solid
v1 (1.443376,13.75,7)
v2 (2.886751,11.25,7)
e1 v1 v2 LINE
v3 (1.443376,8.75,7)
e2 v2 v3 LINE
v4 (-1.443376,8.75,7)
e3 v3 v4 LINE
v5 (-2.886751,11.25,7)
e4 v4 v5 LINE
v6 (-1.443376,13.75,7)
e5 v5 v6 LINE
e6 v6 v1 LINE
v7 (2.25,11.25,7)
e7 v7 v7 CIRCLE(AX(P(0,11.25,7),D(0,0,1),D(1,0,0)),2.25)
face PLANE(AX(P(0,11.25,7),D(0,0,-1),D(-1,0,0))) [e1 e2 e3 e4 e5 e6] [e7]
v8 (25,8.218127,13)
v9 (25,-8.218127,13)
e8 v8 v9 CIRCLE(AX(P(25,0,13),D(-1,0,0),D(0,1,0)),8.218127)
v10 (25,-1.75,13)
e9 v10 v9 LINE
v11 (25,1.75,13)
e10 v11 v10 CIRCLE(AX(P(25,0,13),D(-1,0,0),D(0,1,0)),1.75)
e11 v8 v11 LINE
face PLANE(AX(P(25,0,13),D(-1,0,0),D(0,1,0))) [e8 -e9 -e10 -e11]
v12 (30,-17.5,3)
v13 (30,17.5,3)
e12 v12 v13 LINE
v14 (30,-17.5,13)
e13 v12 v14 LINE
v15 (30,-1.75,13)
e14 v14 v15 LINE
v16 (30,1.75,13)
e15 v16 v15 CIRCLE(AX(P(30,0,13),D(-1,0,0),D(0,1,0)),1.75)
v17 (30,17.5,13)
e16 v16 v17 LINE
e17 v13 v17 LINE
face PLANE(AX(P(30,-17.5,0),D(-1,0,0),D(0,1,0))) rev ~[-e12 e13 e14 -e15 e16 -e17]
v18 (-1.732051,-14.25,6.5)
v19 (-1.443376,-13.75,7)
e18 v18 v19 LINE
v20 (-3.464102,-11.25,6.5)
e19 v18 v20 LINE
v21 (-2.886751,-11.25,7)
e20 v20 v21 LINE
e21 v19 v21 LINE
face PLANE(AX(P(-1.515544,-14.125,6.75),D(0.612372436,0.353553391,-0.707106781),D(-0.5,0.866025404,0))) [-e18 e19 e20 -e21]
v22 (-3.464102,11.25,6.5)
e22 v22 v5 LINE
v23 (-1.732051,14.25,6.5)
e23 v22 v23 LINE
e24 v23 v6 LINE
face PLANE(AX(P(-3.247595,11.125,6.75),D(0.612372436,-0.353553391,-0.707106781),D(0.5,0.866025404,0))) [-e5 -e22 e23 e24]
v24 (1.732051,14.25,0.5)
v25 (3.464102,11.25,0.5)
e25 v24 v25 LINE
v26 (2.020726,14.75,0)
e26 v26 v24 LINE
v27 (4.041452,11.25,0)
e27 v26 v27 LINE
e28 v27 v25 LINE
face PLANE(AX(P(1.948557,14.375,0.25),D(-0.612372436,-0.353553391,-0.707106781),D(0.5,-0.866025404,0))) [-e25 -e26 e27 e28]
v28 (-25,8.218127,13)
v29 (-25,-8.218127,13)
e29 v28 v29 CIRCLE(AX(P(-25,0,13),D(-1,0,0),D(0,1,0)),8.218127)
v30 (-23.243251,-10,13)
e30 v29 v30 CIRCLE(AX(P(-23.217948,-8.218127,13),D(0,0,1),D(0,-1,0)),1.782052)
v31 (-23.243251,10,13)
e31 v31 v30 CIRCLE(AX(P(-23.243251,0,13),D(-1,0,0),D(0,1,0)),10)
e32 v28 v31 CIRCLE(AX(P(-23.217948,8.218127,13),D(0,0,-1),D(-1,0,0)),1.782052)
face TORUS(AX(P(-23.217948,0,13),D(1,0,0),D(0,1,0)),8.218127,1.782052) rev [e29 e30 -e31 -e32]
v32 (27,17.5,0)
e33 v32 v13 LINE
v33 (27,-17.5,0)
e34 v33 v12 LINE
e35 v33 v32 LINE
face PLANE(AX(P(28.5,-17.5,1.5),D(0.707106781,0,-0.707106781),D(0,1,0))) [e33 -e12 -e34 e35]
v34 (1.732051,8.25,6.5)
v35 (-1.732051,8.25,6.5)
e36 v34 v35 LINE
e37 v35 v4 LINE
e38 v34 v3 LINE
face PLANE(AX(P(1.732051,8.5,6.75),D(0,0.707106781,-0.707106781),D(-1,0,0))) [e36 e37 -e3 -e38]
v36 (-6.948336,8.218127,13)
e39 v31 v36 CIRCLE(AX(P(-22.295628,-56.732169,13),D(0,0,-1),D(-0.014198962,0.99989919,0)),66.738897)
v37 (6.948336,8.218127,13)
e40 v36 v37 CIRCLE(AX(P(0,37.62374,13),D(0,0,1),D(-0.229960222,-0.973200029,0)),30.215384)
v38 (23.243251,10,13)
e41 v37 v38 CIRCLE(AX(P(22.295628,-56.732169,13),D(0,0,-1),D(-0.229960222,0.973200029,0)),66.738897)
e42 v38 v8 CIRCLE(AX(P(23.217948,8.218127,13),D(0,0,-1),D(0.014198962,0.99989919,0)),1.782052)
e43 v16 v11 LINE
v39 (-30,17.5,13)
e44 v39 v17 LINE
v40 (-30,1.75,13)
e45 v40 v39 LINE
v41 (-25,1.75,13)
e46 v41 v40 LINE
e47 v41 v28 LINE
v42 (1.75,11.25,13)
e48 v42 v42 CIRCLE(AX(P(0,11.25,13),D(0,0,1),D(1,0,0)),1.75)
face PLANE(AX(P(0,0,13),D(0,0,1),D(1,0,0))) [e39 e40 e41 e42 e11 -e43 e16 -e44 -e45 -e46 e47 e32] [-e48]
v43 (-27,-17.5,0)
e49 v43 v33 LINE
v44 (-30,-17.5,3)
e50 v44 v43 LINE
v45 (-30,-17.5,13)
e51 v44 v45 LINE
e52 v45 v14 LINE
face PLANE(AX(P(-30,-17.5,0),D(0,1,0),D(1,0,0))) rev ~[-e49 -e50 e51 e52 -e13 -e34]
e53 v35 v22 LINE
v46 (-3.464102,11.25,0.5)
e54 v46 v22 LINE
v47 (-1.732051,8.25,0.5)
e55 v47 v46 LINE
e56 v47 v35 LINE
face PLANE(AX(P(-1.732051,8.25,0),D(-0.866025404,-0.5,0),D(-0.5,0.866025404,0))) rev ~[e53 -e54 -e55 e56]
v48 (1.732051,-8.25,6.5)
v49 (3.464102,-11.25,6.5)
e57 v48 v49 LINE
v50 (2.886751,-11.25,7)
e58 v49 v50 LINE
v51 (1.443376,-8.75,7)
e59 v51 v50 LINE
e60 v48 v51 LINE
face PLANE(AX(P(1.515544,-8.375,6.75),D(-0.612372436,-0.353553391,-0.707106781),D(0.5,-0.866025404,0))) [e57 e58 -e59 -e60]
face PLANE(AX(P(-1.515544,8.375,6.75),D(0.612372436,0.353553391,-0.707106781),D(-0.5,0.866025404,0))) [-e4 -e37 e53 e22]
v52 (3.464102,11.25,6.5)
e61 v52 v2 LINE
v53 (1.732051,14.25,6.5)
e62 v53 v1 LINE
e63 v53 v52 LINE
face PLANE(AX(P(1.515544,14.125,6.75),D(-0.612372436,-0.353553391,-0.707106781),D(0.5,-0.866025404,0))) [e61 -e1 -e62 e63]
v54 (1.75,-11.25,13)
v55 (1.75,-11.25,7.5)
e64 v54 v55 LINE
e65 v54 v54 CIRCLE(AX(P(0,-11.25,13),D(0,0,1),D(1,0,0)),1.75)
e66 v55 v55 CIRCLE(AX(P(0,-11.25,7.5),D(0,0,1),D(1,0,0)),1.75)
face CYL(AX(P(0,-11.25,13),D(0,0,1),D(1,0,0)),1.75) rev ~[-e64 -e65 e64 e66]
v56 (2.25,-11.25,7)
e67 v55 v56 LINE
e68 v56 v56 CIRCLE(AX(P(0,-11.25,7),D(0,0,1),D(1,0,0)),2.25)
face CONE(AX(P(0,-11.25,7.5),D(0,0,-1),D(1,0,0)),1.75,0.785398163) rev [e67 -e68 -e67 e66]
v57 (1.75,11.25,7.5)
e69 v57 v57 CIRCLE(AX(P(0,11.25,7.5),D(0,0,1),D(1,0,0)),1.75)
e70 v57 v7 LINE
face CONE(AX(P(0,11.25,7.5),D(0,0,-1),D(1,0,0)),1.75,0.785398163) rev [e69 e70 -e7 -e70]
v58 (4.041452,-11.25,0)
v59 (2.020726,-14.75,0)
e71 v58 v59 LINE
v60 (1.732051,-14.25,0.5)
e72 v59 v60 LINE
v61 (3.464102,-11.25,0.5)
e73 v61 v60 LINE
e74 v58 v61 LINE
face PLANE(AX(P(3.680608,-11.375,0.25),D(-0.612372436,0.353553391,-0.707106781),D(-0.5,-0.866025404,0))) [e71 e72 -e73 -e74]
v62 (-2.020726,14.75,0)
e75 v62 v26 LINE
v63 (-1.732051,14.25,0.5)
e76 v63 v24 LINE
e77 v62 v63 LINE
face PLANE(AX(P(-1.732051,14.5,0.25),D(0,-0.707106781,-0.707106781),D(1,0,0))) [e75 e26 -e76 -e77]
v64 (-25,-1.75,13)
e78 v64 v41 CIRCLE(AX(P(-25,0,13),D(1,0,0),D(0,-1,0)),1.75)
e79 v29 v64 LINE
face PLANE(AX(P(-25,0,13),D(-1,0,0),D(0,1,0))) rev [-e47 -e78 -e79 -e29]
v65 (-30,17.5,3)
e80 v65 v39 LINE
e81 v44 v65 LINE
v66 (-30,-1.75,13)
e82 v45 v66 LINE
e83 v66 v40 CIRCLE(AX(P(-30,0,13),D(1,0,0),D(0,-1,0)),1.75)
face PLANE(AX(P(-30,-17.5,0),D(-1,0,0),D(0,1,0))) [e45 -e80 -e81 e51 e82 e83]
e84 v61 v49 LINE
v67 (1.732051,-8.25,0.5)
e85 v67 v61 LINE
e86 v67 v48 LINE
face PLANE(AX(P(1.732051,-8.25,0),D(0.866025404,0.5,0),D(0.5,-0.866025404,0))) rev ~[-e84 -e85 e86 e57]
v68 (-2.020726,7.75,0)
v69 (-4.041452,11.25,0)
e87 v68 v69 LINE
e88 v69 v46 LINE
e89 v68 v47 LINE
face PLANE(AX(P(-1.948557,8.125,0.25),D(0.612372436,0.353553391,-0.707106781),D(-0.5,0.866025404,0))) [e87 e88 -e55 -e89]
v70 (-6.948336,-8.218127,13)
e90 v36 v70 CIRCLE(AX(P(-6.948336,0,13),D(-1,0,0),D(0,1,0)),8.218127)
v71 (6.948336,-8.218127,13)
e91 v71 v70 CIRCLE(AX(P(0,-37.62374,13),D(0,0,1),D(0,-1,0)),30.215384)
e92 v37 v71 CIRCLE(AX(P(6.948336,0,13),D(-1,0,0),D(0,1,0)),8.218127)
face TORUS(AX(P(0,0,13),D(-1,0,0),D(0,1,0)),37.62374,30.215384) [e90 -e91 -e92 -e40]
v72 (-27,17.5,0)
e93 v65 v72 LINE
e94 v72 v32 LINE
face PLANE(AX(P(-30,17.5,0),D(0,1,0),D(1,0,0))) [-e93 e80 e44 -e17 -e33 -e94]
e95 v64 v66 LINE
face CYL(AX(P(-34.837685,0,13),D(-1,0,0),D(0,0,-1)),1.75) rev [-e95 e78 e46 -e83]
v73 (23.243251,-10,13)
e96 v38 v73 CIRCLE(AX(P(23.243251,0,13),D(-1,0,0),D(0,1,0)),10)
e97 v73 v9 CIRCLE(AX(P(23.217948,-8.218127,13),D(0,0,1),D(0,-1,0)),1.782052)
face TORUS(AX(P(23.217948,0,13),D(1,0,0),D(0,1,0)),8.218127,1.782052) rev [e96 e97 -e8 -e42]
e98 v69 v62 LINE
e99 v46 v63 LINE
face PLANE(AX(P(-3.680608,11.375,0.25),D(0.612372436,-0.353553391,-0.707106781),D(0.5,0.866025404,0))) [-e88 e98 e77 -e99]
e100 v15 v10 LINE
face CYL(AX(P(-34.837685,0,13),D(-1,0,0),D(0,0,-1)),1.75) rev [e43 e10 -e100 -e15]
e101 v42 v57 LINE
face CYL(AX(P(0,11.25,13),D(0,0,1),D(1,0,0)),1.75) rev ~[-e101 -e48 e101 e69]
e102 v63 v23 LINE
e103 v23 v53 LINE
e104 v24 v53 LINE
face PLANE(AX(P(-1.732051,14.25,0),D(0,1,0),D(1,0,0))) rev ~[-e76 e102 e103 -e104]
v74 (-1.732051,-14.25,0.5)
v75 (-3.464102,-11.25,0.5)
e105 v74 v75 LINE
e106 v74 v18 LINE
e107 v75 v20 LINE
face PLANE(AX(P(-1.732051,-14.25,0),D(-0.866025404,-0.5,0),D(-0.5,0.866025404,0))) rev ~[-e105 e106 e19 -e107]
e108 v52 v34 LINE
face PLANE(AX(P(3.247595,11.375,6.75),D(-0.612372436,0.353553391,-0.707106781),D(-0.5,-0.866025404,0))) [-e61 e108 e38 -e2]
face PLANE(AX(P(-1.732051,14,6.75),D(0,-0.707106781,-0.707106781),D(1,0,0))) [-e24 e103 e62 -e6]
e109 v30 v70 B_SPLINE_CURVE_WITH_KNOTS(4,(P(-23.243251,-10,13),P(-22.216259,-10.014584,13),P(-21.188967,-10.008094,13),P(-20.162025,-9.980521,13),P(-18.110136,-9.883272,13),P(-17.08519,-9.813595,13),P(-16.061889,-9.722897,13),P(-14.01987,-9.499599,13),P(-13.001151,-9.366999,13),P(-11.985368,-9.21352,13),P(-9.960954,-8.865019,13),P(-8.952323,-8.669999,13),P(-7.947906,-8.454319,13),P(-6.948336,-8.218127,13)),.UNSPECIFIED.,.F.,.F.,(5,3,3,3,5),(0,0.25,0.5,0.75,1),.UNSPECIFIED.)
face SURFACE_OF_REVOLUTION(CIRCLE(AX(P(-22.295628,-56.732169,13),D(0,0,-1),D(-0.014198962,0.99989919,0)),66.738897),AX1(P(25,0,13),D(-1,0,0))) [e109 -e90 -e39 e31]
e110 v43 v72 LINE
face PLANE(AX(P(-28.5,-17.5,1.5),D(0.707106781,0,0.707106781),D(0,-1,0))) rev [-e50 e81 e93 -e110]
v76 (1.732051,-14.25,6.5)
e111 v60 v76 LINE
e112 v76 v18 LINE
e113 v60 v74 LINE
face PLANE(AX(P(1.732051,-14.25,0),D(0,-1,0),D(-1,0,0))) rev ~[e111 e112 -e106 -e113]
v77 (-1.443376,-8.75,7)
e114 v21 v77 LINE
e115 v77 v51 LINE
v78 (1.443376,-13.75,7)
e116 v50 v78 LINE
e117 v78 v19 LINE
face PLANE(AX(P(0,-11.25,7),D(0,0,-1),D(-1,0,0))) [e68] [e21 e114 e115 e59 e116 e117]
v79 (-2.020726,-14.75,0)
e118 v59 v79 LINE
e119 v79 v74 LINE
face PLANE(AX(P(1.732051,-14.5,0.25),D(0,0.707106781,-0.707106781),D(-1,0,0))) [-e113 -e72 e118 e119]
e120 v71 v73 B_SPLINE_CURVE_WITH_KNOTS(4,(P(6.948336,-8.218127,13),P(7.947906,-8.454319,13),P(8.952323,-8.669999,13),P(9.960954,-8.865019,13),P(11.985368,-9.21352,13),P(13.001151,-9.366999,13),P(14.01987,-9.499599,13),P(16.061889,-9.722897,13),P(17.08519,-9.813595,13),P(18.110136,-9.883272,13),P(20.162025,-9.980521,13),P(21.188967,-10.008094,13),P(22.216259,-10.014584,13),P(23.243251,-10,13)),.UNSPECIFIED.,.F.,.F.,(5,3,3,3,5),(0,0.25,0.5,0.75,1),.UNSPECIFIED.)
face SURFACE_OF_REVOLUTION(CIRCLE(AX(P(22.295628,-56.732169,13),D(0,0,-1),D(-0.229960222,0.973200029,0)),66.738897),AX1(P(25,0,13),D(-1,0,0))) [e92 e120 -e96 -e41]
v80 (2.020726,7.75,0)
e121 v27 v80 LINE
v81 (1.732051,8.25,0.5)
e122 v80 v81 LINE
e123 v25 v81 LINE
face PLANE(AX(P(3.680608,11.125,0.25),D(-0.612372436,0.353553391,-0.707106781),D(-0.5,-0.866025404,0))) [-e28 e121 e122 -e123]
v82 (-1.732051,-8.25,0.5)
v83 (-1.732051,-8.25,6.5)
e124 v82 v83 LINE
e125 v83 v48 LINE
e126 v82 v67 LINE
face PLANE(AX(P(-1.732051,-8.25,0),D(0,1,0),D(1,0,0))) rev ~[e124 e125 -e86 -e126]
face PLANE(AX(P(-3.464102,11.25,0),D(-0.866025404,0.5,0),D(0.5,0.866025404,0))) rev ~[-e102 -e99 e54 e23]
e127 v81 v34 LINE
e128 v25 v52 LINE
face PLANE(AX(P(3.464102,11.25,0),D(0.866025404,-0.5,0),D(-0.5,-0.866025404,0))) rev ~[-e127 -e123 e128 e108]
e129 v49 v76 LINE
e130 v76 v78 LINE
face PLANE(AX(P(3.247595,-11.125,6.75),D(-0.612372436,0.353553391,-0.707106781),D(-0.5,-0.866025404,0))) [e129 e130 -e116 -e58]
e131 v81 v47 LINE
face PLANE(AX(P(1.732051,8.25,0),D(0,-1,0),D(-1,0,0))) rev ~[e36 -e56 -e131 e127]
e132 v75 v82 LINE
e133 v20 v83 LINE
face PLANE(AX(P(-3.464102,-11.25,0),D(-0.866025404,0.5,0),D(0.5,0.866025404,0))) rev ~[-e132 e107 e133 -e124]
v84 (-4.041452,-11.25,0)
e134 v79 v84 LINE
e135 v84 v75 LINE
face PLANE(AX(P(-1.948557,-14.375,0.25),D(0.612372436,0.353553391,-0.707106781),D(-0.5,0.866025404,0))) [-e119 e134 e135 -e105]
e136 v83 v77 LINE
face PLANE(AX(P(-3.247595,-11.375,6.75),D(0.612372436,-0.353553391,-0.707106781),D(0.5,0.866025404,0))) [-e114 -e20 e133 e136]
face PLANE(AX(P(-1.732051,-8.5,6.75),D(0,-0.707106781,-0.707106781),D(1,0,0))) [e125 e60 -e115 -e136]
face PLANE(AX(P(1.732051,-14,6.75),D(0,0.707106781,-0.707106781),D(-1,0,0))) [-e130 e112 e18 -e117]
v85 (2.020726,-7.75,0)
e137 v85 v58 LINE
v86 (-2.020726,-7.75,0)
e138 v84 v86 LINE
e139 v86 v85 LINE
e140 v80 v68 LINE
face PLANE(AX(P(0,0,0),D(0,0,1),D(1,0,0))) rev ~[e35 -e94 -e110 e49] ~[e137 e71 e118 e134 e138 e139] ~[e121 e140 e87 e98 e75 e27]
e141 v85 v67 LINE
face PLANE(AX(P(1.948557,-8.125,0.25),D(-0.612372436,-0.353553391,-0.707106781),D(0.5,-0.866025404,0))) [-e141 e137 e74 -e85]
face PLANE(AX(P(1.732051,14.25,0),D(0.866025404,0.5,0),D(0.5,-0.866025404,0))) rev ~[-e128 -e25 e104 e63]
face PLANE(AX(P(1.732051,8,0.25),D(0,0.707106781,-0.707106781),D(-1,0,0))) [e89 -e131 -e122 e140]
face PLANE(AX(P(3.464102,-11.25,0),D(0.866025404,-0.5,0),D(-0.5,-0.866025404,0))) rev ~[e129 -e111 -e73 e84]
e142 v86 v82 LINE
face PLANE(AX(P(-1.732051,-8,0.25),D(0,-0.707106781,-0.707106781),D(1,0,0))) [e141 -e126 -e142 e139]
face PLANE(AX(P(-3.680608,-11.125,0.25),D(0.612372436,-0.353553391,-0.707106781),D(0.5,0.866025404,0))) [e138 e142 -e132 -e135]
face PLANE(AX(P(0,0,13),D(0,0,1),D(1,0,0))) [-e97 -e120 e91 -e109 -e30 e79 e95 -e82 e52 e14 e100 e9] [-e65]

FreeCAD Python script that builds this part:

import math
import FreeCAD as App
import Part
import Sketcher
Q = App.Units.Quantity


def edges_at(feature, points):
    """Names of the edges that pass closest to the given points."""
    edges = feature.Shape.Edges
    near = lambda p: min(range(len(edges)), key=lambda i: edges[i].distToShape(Part.Vertex(*p))[0])
    return sorted({f"Edge{near(p) + 1}" for p in points})


def add_polygon(sketch, points):
    """Adds a closed chain of lines whose ends are joined by coincident constraints."""
    first, n = sketch.GeometryCount, len(points)
    for a, b in zip(points, points[1:] + points[:1]):
        sketch.addGeometry(Part.LineSegment(App.Vector(*a, 0), App.Vector(*b, 0)), False)
    for i in range(n):
        sketch.addConstraint(Sketcher.Constraint("Coincident", first + i, 2, first + (i + 1) % n, 1))

doc = App.newDocument("Part")
params = doc.addObject("Spreadsheet::Sheet", "Params")
for row, (alias, value) in enumerate([
    ("sketch1_width", "60 mm"),
    ("sketch1_height", "35 mm"),
    ("pad1_length", "13 mm"),
    ("sketch2_width", "50 mm"),
    ("groove_angle", "360 deg"),
    ("sketch3_diameter", "3.5 mm"),
    ("sketch4_diameter", "3.5 mm"),
    ("chamfer_size", "3 mm"),
    ("pocket3_length", "7 mm"),
    ("chamfer2_size", "0.5 mm"),
], start=1):
    params.set(f"A{row}", alias)
    params.set(f"B{row}", "=" + value)
    params.setAlias(f"B{row}", alias)

body = doc.addObject("PartDesign::Body", "Body")

sketch1 = body.newObject("Sketcher::SketchObject", "Sketch")
sketch1.AttachmentSupport = (doc.getObject("XY_Plane"), [""])
sketch1.MapMode = "FlatFace"
add_polygon(sketch1, [(-30, 18), (-30, -18), (30, -18), (30, 18)])
sketch1.addConstraint(Sketcher.Constraint("Vertical", 0))
sketch1.addConstraint(Sketcher.Constraint("Horizontal", 1))
sketch1.addConstraint(Sketcher.Constraint("Vertical", 2))
sketch1.addConstraint(Sketcher.Constraint("Horizontal", 3))
sketch1.addConstraint(Sketcher.Constraint("Symmetric", 0, 2, 2, 2, -1, 1))
sketch1.addConstraint(Sketcher.Constraint("DistanceX", 1, 1, 1, 2, 60.0))
sketch1.addConstraint(Sketcher.Constraint("DistanceY", 0, 2, 0, 1, 35.0))
sketch1.setExpression("Constraints[9]", "Params.sketch1_width")
sketch1.setExpression("Constraints[10]", "Params.sketch1_height")
pad1 = body.newObject("PartDesign::Pad", "Pad")
pad1.Profile = sketch1
pad1.setExpression("Length", "Params.pad1_length")

sketch2 = body.newObject("Sketcher::SketchObject", "Sketch001")
sketch2.AttachmentSupport = (doc.getObject("XY_Plane"), [""])
sketch2.MapMode = "FlatFace"
sketch2.AttachmentOffset = App.Placement(App.Vector(0, 0, 13), App.Rotation())
sketch2.addGeometry(Part.LineSegment(App.Vector(-25, 8.2, 0), App.Vector(-25, 0, 0)), False)
sketch2.addGeometry(Part.LineSegment(App.Vector(-25, 0, 0), App.Vector(25, 0, 0)), False)
sketch2.addGeometry(Part.LineSegment(App.Vector(25, 0, 0), App.Vector(25, 8.2, 0)), False)
sketch2.addGeometry(Part.ArcOfCircle(Part.Circle(App.Vector(23.2, 8.2, 0), App.Vector(0, 0, 1), 1.8), math.radians(0), math.radians(89)), False)
sketch2.addGeometry(Part.ArcOfCircle(Part.Circle(App.Vector(22.3, -56.7, 0), App.Vector(0, 0, 1), 66.7), math.radians(89.19), math.radians(103.29)), False)
sketch2.addGeometry(Part.ArcOfCircle(Part.Circle(App.Vector(0, 37.6, 0), App.Vector(0, 0, 1), 30.2), math.radians(-103), math.radians(-77)), False)
sketch2.addGeometry(Part.ArcOfCircle(Part.Circle(App.Vector(-22.3, -56.7, 0), App.Vector(0, 0, 1), 66.7), math.radians(76.71), math.radians(90.81)), False)
sketch2.addGeometry(Part.ArcOfCircle(Part.Circle(App.Vector(-23.2, 8.2, 0), App.Vector(0, 0, 1), 1.8), math.radians(91), math.radians(180)), False)
sketch2.addConstraint(Sketcher.Constraint("Coincident", 0, 2, 1, 1))
sketch2.addConstraint(Sketcher.Constraint("Coincident", 1, 2, 2, 1))
sketch2.addConstraint(Sketcher.Constraint("Tangent", 2, 2, 3, 1))
sketch2.addConstraint(Sketcher.Constraint("Tangent", 3, 2, 4, 1))
sketch2.addConstraint(Sketcher.Constraint("Tangent", 4, 2, 5, 2))
sketch2.addConstraint(Sketcher.Constraint("Tangent", 5, 1, 6, 1))
sketch2.addConstraint(Sketcher.Constraint("Tangent", 6, 2, 7, 1))
sketch2.addConstraint(Sketcher.Constraint("Tangent", 7, 2, 0, 1))
sketch2.addConstraint(Sketcher.Constraint("Vertical", 0))
sketch2.addConstraint(Sketcher.Constraint("Horizontal", 1))
sketch2.addConstraint(Sketcher.Constraint("Vertical", 2))
sketch2.addConstraint(Sketcher.Constraint("Equal", 4, 6))
sketch2.addConstraint(Sketcher.Constraint("Equal", 3, 7))
sketch2.addConstraint(Sketcher.Constraint("Symmetric", 0, 2, 1, 2, -1, 1))
sketch2.addConstraint(Sketcher.Constraint("Symmetric", 4, 3, 6, 3, -2))
sketch2.addConstraint(Sketcher.Constraint("Horizontal", 2, 2, 4, 2))
sketch2.addConstraint(Sketcher.Constraint("DistanceX", 1, 1, 1, 2, 50.0))
sketch2.addConstraint(Sketcher.Constraint("DistanceY", -1, 1, 3, 2, 10.0))
sketch2.addConstraint(Sketcher.Constraint("Radius", 3, 1.782052))
sketch2.addConstraint(Sketcher.Constraint("Radius", 4, 66.738897))
sketch2.addConstraint(Sketcher.Constraint("Radius", 5, 30.215384))
sketch2.setExpression("Constraints[16]", "Params.sketch2_width")
groove = body.newObject("PartDesign::Groove", "Groove")
groove.Profile = sketch2
groove.ReferenceAxis = (sketch2, ["H_Axis"])
groove.setExpression("Angle", "Params.groove_angle")

sketch3 = body.newObject("Sketcher::SketchObject", "Sketch002")
sketch3.AttachmentSupport = (doc.getObject("YZ_Plane"), [""])
sketch3.MapMode = "FlatFace"
sketch3.AttachmentOffset = App.Placement(App.Vector(0, 0, 30), App.Rotation())
sketch3.addGeometry(Part.Circle(App.Vector(0, 13, 0), App.Vector(0, 0, 1), 1.8), False)
sketch3.addConstraint(Sketcher.Constraint("PointOnObject", 0, 3, -2))
sketch3.addConstraint(Sketcher.Constraint("Diameter", 0, 3.5))
sketch3.addConstraint(Sketcher.Constraint("DistanceY", -1, 1, 0, 3, 13.0))
sketch3.setExpression("Constraints[1]", "Params.sketch3_diameter")
pocket1 = body.newObject("PartDesign::Pocket", "Pocket")
pocket1.Profile = sketch3
pocket1.Type = "ThroughAll"
pocket1.Midplane = True

sketch4 = body.newObject("Sketcher::SketchObject", "Sketch003")
sketch4.AttachmentSupport = (doc.getObject("XY_Plane"), [""])
sketch4.MapMode = "FlatFace"
sketch4.AttachmentOffset = App.Placement(App.Vector(0, 0, 13), App.Rotation())
sketch4.addGeometry(Part.Circle(App.Vector(0, 11.2, 0), App.Vector(0, 0, 1), 1.8), False)
sketch4.addGeometry(Part.Circle(App.Vector(0, -11.2, 0), App.Vector(0, 0, 1), 1.8), False)
sketch4.addConstraint(Sketcher.Constraint("Equal", 0, 1))
sketch4.addConstraint(Sketcher.Constraint("Symmetric", 0, 3, 1, 3, -1, 1))
sketch4.addConstraint(Sketcher.Constraint("PointOnObject", 0, 3, -2))
sketch4.addConstraint(Sketcher.Constraint("Diameter", 0, 3.5))
sketch4.addConstraint(Sketcher.Constraint("DistanceY", 1, 3, 0, 3, 22.5))
sketch4.setExpression("Constraints[3]", "Params.sketch4_diameter")
pocket2 = body.newObject("PartDesign::Pocket", "Pocket001")
pocket2.Profile = sketch4
pocket2.Type = "ThroughAll"
doc.recompute()

chamfer = body.newObject("PartDesign::Chamfer", "Chamfer")
chamfer.Base = (pocket2, edges_at(pocket2, [(-30, 0, 0), (30, 0, 0)]))
chamfer.setExpression("Size", "Params.chamfer_size")

sketch5 = body.newObject("Sketcher::SketchObject", "Sketch004")
sketch5.AttachmentSupport = (doc.getObject("XY_Plane"), [""])
sketch5.MapMode = "FlatFace"
add_polygon(sketch5, [(-3.5, 11.2), (-1.7, 14.2), (1.7, 14.2), (3.5, 11.2), (1.7, 8.2), (-1.7, 8.2)])
add_polygon(sketch5, [(-3.5, -11.2), (-1.7, -8.2), (1.7, -8.2), (3.5, -11.2), (1.7, -14.2), (-1.7, -14.2)])
sketch5.addConstraint(Sketcher.Constraint("Horizontal", 1))
sketch5.addConstraint(Sketcher.Constraint("Horizontal", 4))
sketch5.addConstraint(Sketcher.Constraint("Horizontal", 7))
sketch5.addConstraint(Sketcher.Constraint("Horizontal", 10))
sketch5.addConstraint(Sketcher.Constraint("Symmetric", 3, 2, 6, 2, -1, 1))
sketch5.addConstraint(Sketcher.Constraint("Symmetric", 5, 2, 8, 2, -1, 1))
sketch5.addConstraint(Sketcher.Constraint("Symmetric", 0, 2, 9, 2, -1, 1))
sketch5.addConstraint(Sketcher.Constraint("Symmetric", 2, 2, 11, 2, -1, 1))
sketch5.addConstraint(Sketcher.Constraint("Symmetric", 2, 2, 5, 2, -2))
sketch5.addConstraint(Sketcher.Constraint("Parallel", 0, 3))
sketch5.addConstraint(Sketcher.Constraint("Parallel", 2, 5))
sketch5.addConstraint(Sketcher.Constraint("Parallel", 5, 8))
sketch5.addConstraint(Sketcher.Constraint("Parallel", 8, 11))
sketch5.addConstraint(Sketcher.Constraint("Vertical", 1, 2, 3, 2))
sketch5.addConstraint(Sketcher.Constraint("Vertical", 0, 2, 4, 2))
sketch5.addConstraint(Sketcher.Constraint("Angle", 0, Q("60 deg")))
sketch5.addConstraint(Sketcher.Constraint("DistanceY", 2, 2, 1, 2, 3.0))
sketch5.addConstraint(Sketcher.Constraint("DistanceY", 6, 2, 4, 2, 16.5))
sketch5.addConstraint(Sketcher.Constraint("DistanceX", 1, 1, 1, 2, 3.464102))
pocket3 = body.newObject("PartDesign::Pocket", "Pocket002")
pocket3.Profile = sketch5
pocket3.setExpression("Length", "Params.pocket3_length")
pocket3.Reversed = True
doc.recompute()

chamfer2 = body.newObject("PartDesign::Chamfer", "Chamfer001")
chamfer2.Base = (pocket3, edges_at(pocket3, [
    (-2.598, 9.75, 0),
    (-2.598, 12.75, 0),
    (0, 14.25, 0),
    (2.598, 12.75, 0),
    (2.598, 9.75, 0),
    (0, 8.25, 0),
    (-2.598, 9.75, 7),
    (0, 8.25, 7),
    (2.598, 9.75, 7),
    (2.598, 12.75, 7),
    (0, 14.25, 7),
    (-2.598, 12.75, 7),
    (-1.75, 11.25, 7),
    (-2.598, -12.75, 0),
    (-2.598, -9.75, 0),
    (0, -8.25, 0),
    (2.598, -9.75, 0),
    (2.598, -12.75, 0),
    (0, -14.25, 0),
    (-2.598, -12.75, 7),
    (0, -14.25, 7),
    (2.598, -12.75, 7),
    (2.598, -9.75, 7),
    (0, -8.25, 7),
    (-2.598, -9.75, 7),
    (-1.75, -11.25, 7),
]))
chamfer2.setExpression("Size", "Params.chamfer2_size")

doc.recompute()
